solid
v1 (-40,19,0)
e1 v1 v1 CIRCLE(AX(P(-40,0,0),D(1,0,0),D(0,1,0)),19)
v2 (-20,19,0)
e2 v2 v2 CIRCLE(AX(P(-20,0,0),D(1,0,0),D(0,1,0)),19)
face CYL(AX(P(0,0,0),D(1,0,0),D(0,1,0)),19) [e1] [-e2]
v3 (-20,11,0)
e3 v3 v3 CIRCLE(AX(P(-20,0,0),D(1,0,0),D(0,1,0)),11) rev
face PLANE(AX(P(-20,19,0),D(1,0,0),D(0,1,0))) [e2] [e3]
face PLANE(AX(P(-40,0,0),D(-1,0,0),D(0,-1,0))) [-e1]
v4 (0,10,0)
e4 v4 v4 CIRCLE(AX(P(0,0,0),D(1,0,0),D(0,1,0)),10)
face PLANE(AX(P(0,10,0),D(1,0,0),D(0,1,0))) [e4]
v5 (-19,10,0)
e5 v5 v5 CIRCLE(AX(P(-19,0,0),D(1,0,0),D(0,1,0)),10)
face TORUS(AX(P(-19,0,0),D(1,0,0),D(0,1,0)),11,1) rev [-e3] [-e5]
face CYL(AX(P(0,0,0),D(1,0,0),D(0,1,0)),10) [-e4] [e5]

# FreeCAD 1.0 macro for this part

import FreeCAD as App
import Part
import Sketcher
from FreeCAD import Vector


def edges_at(feature, points):
    """Names of the edges that pass closest to the given points."""
    edges = feature.Shape.Edges
    near = lambda p: min(range(len(edges)), key=lambda i: edges[i].distToShape(Part.Vertex(*p))[0])
    return sorted({f"Edge{near(p) + 1}" for p in points})

doc = App.newDocument("Part")
params = doc.addObject("Spreadsheet::Sheet", "Params")
for row, (alias, value) in enumerate([
    ("sketch1_width", "40 mm"),
    ("sketch1_height", "10 mm"),
    ("sketch1_height2", "9 mm"),
    ("revolution_angle", "360 deg"),
    ("fillet_radius", "1 mm"),
], start=1):
    params.set(f"A{row}", alias)
    params.set(f"B{row}", "=" + value)
    params.setAlias(f"B{row}", alias)

body = doc.addObject("PartDesign::Body", "Body")

# Sketch on XY plane
sketch1 = body.newObject("Sketcher::SketchObject", "Sketch")
sketch1.AttachmentSupport = (doc.getObject("XY_Plane"), [""])
sketch1.MapMode = "FlatFace"
sketch1.addGeometry([
    Part.LineSegment(Vector(-40, 0, 0), Vector(0, 0, 0)),  # 0
    Part.LineSegment(Vector(0, 0, 0), Vector(0, 10, 0)),  # 1
    Part.LineSegment(Vector(0, 10, 0), Vector(-20, 10, 0)),  # 2
    Part.LineSegment(Vector(-20, 10, 0), Vector(-20, 19, 0)),  # 3
    Part.LineSegment(Vector(-20, 19, 0), Vector(-40, 19, 0)),  # 4
    Part.LineSegment(Vector(-40, 19, 0), Vector(-40, 0, 0)),  # 5
], False)
sketch1.addConstraint([
    Sketcher.Constraint("Coincident", 0, 2, 1, 1),
    Sketcher.Constraint("Coincident", 1, 2, 2, 1),
    Sketcher.Constraint("Coincident", 2, 2, 3, 1),
    Sketcher.Constraint("Coincident", 3, 2, 4, 1),
    Sketcher.Constraint("Coincident", 4, 2, 5, 1),
    Sketcher.Constraint("Coincident", 5, 2, 0, 1),
    Sketcher.Constraint("Horizontal", 0),
    Sketcher.Constraint("Vertical", 1),
    Sketcher.Constraint("Horizontal", 2),
    Sketcher.Constraint("Vertical", 3),
    Sketcher.Constraint("Horizontal", 4),
    Sketcher.Constraint("Vertical", 5),
    Sketcher.Constraint("Coincident", 0, 2, -1, 1),
    Sketcher.Constraint("Equal", 2, 4),
    Sketcher.Constraint("DistanceX", 0, 1, 0, 2, 40.0),
    Sketcher.Constraint("DistanceY", 1, 1, 1, 2, 10.0),
    Sketcher.Constraint("DistanceY", 3, 1, 3, 2, 9.0),
])
sketch1.setExpression("Constraints[14]", "Params.sketch1_width")
sketch1.setExpression("Constraints[15]", "Params.sketch1_height")
sketch1.setExpression("Constraints[16]", "Params.sketch1_height2")
revolution = body.newObject("PartDesign::Revolution", "Revolution")
revolution.Profile = sketch1
revolution.ReferenceAxis = (sketch1, ["H_Axis"])
revolution.setExpression("Angle", "Params.revolution_angle")
doc.recompute()

fillet = body.newObject("PartDesign::Fillet", "Fillet")
fillet.Base = (revolution, edges_at(revolution, [(-20, -10, 0)]))
fillet.setExpression("Radius", "Params.fillet_radius")

doc.recompute()
